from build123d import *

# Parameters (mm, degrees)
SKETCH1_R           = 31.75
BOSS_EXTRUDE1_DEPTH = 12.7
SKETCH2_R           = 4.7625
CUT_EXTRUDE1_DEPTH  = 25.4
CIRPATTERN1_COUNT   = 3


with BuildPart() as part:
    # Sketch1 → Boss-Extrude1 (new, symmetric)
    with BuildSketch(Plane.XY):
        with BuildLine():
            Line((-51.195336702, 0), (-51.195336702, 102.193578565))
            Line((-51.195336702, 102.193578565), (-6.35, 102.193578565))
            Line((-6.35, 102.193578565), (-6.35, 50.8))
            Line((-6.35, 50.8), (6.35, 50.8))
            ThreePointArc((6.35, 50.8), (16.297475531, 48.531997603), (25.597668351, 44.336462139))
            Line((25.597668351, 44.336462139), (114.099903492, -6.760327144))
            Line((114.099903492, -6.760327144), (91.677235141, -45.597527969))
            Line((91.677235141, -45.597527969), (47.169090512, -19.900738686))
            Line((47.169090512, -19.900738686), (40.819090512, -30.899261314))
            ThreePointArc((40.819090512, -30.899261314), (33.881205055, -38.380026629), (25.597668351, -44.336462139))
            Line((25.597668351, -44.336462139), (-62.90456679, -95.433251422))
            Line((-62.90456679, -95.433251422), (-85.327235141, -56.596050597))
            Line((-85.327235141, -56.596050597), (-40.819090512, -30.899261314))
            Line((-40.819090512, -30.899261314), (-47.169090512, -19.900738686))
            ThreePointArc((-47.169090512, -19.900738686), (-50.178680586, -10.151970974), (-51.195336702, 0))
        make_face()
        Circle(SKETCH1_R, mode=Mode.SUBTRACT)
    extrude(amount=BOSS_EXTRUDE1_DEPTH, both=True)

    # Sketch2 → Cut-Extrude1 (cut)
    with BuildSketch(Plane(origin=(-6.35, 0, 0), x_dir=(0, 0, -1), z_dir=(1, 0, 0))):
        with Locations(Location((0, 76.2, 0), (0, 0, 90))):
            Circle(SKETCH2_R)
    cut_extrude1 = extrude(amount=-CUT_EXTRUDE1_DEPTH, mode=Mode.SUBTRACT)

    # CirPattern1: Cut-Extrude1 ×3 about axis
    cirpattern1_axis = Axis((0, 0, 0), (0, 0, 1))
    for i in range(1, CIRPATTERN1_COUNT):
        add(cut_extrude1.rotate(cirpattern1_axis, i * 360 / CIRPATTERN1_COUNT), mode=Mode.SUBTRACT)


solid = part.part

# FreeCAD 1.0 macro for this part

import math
import FreeCAD as App
import Part
import Sketcher

V = App.Vector
Q = App.Units.Quantity

doc = App.newDocument("Part")
params = doc.addObject("Spreadsheet::Sheet", "Params")
for row, (alias, value) in enumerate([
    ("sketch1_diameter", "2.5 in"),
    ("sketch1_width", "0.5 in"),
    ("sketch1_length", "0.5 in"),
    ("pad1_length", "1 in"),
    ("sketch2_diameter", "0.375 in"),
    ("pocket1_length", "1 in"),
], start=1):
    params.set(f"A{row}", alias)
    params.set(f"B{row}", "=" + value)
    params.setAlias(f"B{row}", alias)

body = doc.addObject("PartDesign::Body", "Body")

sketch1 = body.newObject("Sketcher::SketchObject", "Sketch")
sketch1.AttachmentSupport = (doc.getObject("XY_Plane"), [""])
sketch1.MapMode = "FlatFace"
sketch1.addGeometry([
    Part.LineSegment(V(-51, 102, 0), V(-51, 0, 0)),
    Part.ArcOfCircle(Part.Circle(V(0, 0, 0), V(0, 0, 1), 51), math.radians(-180), math.radians(-157)),
    Part.LineSegment(V(-47, -20, 0), V(-41, -31, 0)),
    Part.LineSegment(V(-41, -31, 0), V(-85, -57, 0)),
    Part.LineSegment(V(-85, -57, 0), V(-63, -95, 0)),
    Part.LineSegment(V(-63, -95, 0), V(26, -44, 0)),
    Part.ArcOfCircle(Part.Circle(V(0, 0, 0), V(0, 0, 1), 51), math.radians(-60), math.radians(-37)),
    Part.LineSegment(V(41, -31, 0), V(47, -20, 0)),
    Part.LineSegment(V(47, -20, 0), V(92, -46, 0)),
    Part.LineSegment(V(92, -46, 0), V(114, -7, 0)),
    Part.LineSegment(V(114, -7, 0), V(26, 44, 0)),
    Part.ArcOfCircle(Part.Circle(V(0, 0, 0), V(0, 0, 1), 51), math.radians(60), math.radians(83)),
    Part.LineSegment(V(6, 51, 0), V(-6, 51, 0)),
    Part.LineSegment(V(-6, 51, 0), V(-6, 102, 0)),
    Part.LineSegment(V(-6, 102, 0), V(-51, 102, 0)),
    Part.Circle(V(0, 0, 0), V(0, 0, 1), 32),
], False)
sketch1.addConstraint([
    Sketcher.Constraint("Tangent", 0, 2, 1, 1),
    Sketcher.Constraint("Coincident", 1, 2, 2, 1),
    Sketcher.Constraint("Coincident", 2, 2, 3, 1),
    Sketcher.Constraint("Coincident", 3, 2, 4, 1),
    Sketcher.Constraint("Coincident", 4, 2, 5, 1),
    Sketcher.Constraint("Tangent", 5, 2, 6, 1),
    Sketcher.Constraint("Coincident", 6, 2, 7, 1),
    Sketcher.Constraint("Coincident", 7, 2, 8, 1),
    Sketcher.Constraint("Coincident", 8, 2, 9, 1),
    Sketcher.Constraint("Coincident", 9, 2, 10, 1),
    Sketcher.Constraint("Tangent", 10, 2, 11, 1),
    Sketcher.Constraint("Coincident", 11, 2, 12, 1),
    Sketcher.Constraint("Coincident", 12, 2, 13, 1),
    Sketcher.Constraint("Coincident", 13, 2, 14, 1),
    Sketcher.Constraint("Coincident", 14, 2, 0, 1),
    Sketcher.Constraint("Vertical", 0),
    Sketcher.Constraint("Horizontal", 12),
    Sketcher.Constraint("Vertical", 13),
    Sketcher.Constraint("Horizontal", 14),
    Sketcher.Constraint("Coincident", 1, 3, -1, 1),
    Sketcher.Constraint("Coincident", 6, 3, -1, 1),
    Sketcher.Constraint("Coincident", 11, 3, -1, 1),
    Sketcher.Constraint("Coincident", 15, 3, -1, 1),
    Sketcher.Constraint("Equal", 1, 6),
    Sketcher.Constraint("Equal", 6, 11),
    Sketcher.Constraint("Symmetric", 2, 2, 6, 2, -2),
    Sketcher.Constraint("Symmetric", 1, 2, 7, 2, -2),
    Sketcher.Constraint("Perpendicular", 2, 3),
    Sketcher.Constraint("Perpendicular", 3, 4),
    Sketcher.Constraint("Perpendicular", 4, 5),
    Sketcher.Constraint("Perpendicular", 7, 8),
    Sketcher.Constraint("Perpendicular", 8, 9),
    Sketcher.Constraint("Perpendicular", 9, 10),
    Sketcher.Constraint("Equal", 3, 8),
    Sketcher.Constraint("Diameter", 15, Q("2.5 in")),
    Sketcher.Constraint("DistanceX", 12, 2, 12, 1, Q("0.5 in")),
    Sketcher.Constraint("DistanceY", -1, 1, 11, 2, Q("2 in")),
    Sketcher.Constraint("Angle", 2, Q("-60 deg")),
    Sketcher.Constraint("Distance", 2, Q("0.5 in")),
    Sketcher.Constraint("DistanceX", -1, 1, 11, 2, Q("0.25 in")),
    Sketcher.Constraint("DistanceY", 0, 2, 0, 1, Q("102.193579 mm")),
    Sketcher.Constraint("DistanceX", 3, 2, 0, 2, Q("34.131898 mm")),
])
sketch1.setExpression("Constraints[34]", "Params.sketch1_diameter")
sketch1.setExpression("Constraints[35]", "Params.sketch1_width")
sketch1.setExpression("Constraints[38]", "Params.sketch1_length")
pad1 = body.newObject("PartDesign::Pad", "Pad")
pad1.Profile = sketch1
pad1.setExpression("Length", "Params.pad1_length")
pad1.Midplane = True

sketch2 = body.newObject("Sketcher::SketchObject", "Sketch001")
sketch2.AttachmentSupport = (doc.getObject("YZ_Plane"), [""])
sketch2.MapMode = "FlatFace"
sketch2.AttachmentOffset = App.Placement(V(0, 0, -0.25 * 25.4), App.Rotation())
sketch2.addGeometry(Part.Circle(V(76.2, 0, 0), V(0, 0, 1), 4.8), False)
sketch2.addConstraint([
    Sketcher.Constraint("PointOnObject", 0, 3, -1),
    Sketcher.Constraint("Diameter", 0, Q("0.375 in")),
    Sketcher.Constraint("DistanceX", -1, 1, 0, 3, Q("3 in")),
])
sketch2.setExpression("Constraints[1]", "Params.sketch2_diameter")
pocket1 = body.newObject("PartDesign::Pocket", "Pocket")
pocket1.Profile = sketch2
pocket1.setExpression("Length", "Params.pocket1_length")
doc.recompute()

polarpattern = body.newObject("PartDesign::PolarPattern", "PolarPattern")
polarpattern.Originals = [pocket1]
polarpattern.Axis = (doc.getObject("Z_Axis"), [""])
polarpattern.Angle = 360
polarpattern.Occurrences = 3
body.Tip = polarpattern

doc.recompute()
